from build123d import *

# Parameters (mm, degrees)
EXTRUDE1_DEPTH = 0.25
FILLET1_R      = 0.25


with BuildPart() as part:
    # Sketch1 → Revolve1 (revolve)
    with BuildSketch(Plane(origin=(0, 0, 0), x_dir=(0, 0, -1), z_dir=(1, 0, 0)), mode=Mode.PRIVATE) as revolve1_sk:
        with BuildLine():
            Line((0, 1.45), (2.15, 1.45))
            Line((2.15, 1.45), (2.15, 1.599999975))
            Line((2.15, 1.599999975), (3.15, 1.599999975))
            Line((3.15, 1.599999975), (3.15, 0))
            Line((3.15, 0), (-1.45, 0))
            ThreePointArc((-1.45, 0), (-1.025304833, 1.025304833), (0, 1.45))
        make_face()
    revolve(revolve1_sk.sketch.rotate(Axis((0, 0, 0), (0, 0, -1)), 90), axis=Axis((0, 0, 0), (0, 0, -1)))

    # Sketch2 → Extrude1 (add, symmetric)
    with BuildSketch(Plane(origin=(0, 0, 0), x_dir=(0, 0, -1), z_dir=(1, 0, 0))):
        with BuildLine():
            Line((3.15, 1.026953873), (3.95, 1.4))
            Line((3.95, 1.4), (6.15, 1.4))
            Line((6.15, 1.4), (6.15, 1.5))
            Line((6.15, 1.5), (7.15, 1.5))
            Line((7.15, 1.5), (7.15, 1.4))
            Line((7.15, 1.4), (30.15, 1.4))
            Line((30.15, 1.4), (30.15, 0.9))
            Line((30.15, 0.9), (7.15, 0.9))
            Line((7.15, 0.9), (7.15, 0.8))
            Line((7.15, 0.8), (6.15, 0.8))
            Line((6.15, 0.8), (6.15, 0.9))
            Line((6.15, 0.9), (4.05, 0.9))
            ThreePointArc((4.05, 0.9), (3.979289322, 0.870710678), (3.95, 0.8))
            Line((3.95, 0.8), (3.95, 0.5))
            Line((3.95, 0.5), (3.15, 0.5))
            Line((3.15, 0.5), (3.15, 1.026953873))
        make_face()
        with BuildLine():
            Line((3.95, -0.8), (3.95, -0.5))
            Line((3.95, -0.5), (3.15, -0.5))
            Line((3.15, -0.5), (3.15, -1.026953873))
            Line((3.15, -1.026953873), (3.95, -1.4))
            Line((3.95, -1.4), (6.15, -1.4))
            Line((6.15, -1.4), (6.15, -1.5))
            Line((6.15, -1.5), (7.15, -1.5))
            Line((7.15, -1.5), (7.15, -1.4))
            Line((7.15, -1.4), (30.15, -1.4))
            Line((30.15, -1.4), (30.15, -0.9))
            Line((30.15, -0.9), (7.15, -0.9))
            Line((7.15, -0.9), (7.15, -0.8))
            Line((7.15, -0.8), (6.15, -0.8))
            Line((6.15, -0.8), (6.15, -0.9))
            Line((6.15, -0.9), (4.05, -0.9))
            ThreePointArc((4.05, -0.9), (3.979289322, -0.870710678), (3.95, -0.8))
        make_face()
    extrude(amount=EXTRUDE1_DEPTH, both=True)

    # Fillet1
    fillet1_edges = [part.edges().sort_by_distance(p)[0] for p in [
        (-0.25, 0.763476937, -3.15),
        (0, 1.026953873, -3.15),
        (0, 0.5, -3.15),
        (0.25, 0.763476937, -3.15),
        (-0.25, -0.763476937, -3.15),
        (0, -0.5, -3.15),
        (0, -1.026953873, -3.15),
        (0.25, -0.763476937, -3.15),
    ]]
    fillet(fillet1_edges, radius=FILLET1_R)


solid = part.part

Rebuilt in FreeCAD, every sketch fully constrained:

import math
import FreeCAD as App
import Part
import Sketcher
Q = App.Units.Quantity


def edges_at(feature, points):
    """Names of the edges that pass closest to the given points."""
    edges = feature.Shape.Edges
    near = lambda p: min(range(len(edges)), key=lambda i: edges[i].distToShape(Part.Vertex(*p))[0])
    return sorted({f"Edge{near(p) + 1}" for p in points})

doc = App.newDocument("Part")
body = doc.addObject("PartDesign::Body", "Body")

# Sketch on YZ plane
sketch1 = body.newObject("Sketcher::SketchObject", "Sketch")
sketch1.AttachmentSupport = (doc.getObject("YZ_Plane"), [""])
sketch1.MapMode = "FlatFace"
sketch1.addGeometry([
    Part.LineSegment(App.Vector(1.45, -2.15, 0), App.Vector(1.45, 0, 0)),  # 0
    Part.ArcOfCircle(Part.Circle(App.Vector(0, 0, 0), App.Vector(0, 0, 1), 1.45), math.radians(0), math.radians(90)),  # 1
    Part.LineSegment(App.Vector(0, 1.45, 0), App.Vector(0, -3.15, 0)),  # 2
    Part.LineSegment(App.Vector(0, -3.15, 0), App.Vector(1.6, -3.15, 0)),  # 3
    Part.LineSegment(App.Vector(1.6, -3.15, 0), App.Vector(1.6, -2.15, 0)),  # 4
    Part.LineSegment(App.Vector(1.6, -2.15, 0), App.Vector(1.45, -2.15, 0)),  # 5
], False)
sketch1.addConstraint([
    Sketcher.Constraint("Tangent", 0, 2, 1, 1),
    Sketcher.Constraint("Coincident", 1, 2, 2, 1),
    Sketcher.Constraint("Coincident", 2, 2, 3, 1),
    Sketcher.Constraint("Coincident", 3, 2, 4, 1),
    Sketcher.Constraint("Coincident", 4, 2, 5, 1),
    Sketcher.Constraint("Coincident", 5, 2, 0, 1),
    Sketcher.Constraint("Vertical", 0),
    Sketcher.Constraint("Vertical", 2),
    Sketcher.Constraint("Horizontal", 3),
    Sketcher.Constraint("Vertical", 4),
    Sketcher.Constraint("Horizontal", 5),
    Sketcher.Constraint("Coincident", 1, 3, -1, 1),
    Sketcher.Constraint("PointOnObject", 1, 2, -2),
    Sketcher.Constraint("DistanceY", 4, 1, 4, 2, 1.0),
    Sketcher.Constraint("Radius", 1, 1.45),
    Sketcher.Constraint("DistanceX", 3, 1, 3, 2, 1.6),
    Sketcher.Constraint("DistanceY", 2, 2, 2, 1, 4.6),
])
revolution = body.newObject("PartDesign::Revolution", "Revolution")
revolution.Profile = sketch1
revolution.ReferenceAxis = (sketch1, ["V_Axis"])
revolution.Angle = 360

# Sketch on YZ plane
sketch2 = body.newObject("Sketcher::SketchObject", "Sketch001")
sketch2.AttachmentSupport = (doc.getObject("YZ_Plane"), [""])
sketch2.MapMode = "FlatFace"
sketch2.addGeometry([
    Part.LineSegment(App.Vector(1.4, -3.95, 0), App.Vector(1.026954, -3.15, 0)),  # 0
    Part.LineSegment(App.Vector(1.026954, -3.15, 0), App.Vector(0.5, -3.15, 0)),  # 1
    Part.LineSegment(App.Vector(0.5, -3.15, 0), App.Vector(0.5, -3.95, 0)),  # 2
    Part.LineSegment(App.Vector(0.5, -3.95, 0), App.Vector(0.8, -3.95, 0)),  # 3
    Part.ArcOfCircle(Part.Circle(App.Vector(0.8, -4.05, 0), App.Vector(0, 0, 1), 0.1), math.radians(0), math.radians(90)),  # 4
    Part.LineSegment(App.Vector(0.9, -4.05, 0), App.Vector(0.9, -6.15, 0)),  # 5
    Part.LineSegment(App.Vector(0.9, -6.15, 0), App.Vector(0.8, -6.15, 0)),  # 6
    Part.LineSegment(App.Vector(0.8, -6.15, 0), App.Vector(0.8, -7.15, 0)),  # 7
    Part.LineSegment(App.Vector(0.8, -7.15, 0), App.Vector(0.9, -7.15, 0)),  # 8
    Part.LineSegment(App.Vector(0.9, -7.15, 0), App.Vector(0.9, -30.15, 0)),  # 9
    Part.LineSegment(App.Vector(0.9, -30.15, 0), App.Vector(1.4, -30.15, 0)),  # 10
    Part.LineSegment(App.Vector(1.4, -30.15, 0), App.Vector(1.4, -7.15, 0)),  # 11
    Part.LineSegment(App.Vector(1.4, -7.15, 0), App.Vector(1.5, -7.15, 0)),  # 12
    Part.LineSegment(App.Vector(1.5, -7.15, 0), App.Vector(1.5, -6.15, 0)),  # 13
    Part.LineSegment(App.Vector(1.5, -6.15, 0), App.Vector(1.4, -6.15, 0)),  # 14
    Part.LineSegment(App.Vector(1.4, -6.15, 0), App.Vector(1.4, -3.95, 0)),  # 15
    Part.LineSegment(App.Vector(-0.8, -3.95, 0), App.Vector(-0.5, -3.95, 0)),  # 16
    Part.LineSegment(App.Vector(-0.5, -3.95, 0), App.Vector(-0.5, -3.15, 0)),  # 17
    Part.LineSegment(App.Vector(-0.5, -3.15, 0), App.Vector(-1.026954, -3.15, 0)),  # 18
    Part.LineSegment(App.Vector(-1.026954, -3.15, 0), App.Vector(-1.4, -3.95, 0)),  # 19
    Part.LineSegment(App.Vector(-1.4, -3.95, 0), App.Vector(-1.4, -6.15, 0)),  # 20
    Part.LineSegment(App.Vector(-1.4, -6.15, 0), App.Vector(-1.5, -6.15, 0)),  # 21
    Part.LineSegment(App.Vector(-1.5, -6.15, 0), App.Vector(-1.5, -7.15, 0)),  # 22
    Part.LineSegment(App.Vector(-1.5, -7.15, 0), App.Vector(-1.4, -7.15, 0)),  # 23
    Part.LineSegment(App.Vector(-1.4, -7.15, 0), App.Vector(-1.4, -30.15, 0)),  # 24
    Part.LineSegment(App.Vector(-1.4, -30.15, 0), App.Vector(-0.9, -30.15, 0)),  # 25
    Part.LineSegment(App.Vector(-0.9, -30.15, 0), App.Vector(-0.9, -7.15, 0)),  # 26
    Part.LineSegment(App.Vector(-0.9, -7.15, 0), App.Vector(-0.8, -7.15, 0)),  # 27
    Part.LineSegment(App.Vector(-0.8, -7.15, 0), App.Vector(-0.8, -6.15, 0)),  # 28
    Part.LineSegment(App.Vector(-0.8, -6.15, 0), App.Vector(-0.9, -6.15, 0)),  # 29
    Part.LineSegment(App.Vector(-0.9, -6.15, 0), App.Vector(-0.9, -4.05, 0)),  # 30
    Part.ArcOfCircle(Part.Circle(App.Vector(-0.8, -4.05, 0), App.Vector(0, 0, 1), 0.1), math.radians(90), math.radians(180)),  # 31
], False)
sketch2.addConstraint([
    Sketcher.Constraint("Coincident", 0, 2, 1, 1),
    Sketcher.Constraint("Coincident", 1, 2, 2, 1),
    Sketcher.Constraint("Coincident", 2, 2, 3, 1),
    Sketcher.Constraint("Tangent", 3, 2, 4, 2),
    Sketcher.Constraint("Tangent", 4, 1, 5, 1),
    Sketcher.Constraint("Coincident", 5, 2, 6, 1),
    Sketcher.Constraint("Coincident", 6, 2, 7, 1),
    Sketcher.Constraint("Coincident", 7, 2, 8, 1),
    Sketcher.Constraint("Coincident", 8, 2, 9, 1),
    Sketcher.Constraint("Coincident", 9, 2, 10, 1),
    Sketcher.Constraint("Coincident", 10, 2, 11, 1),
    Sketcher.Constraint("Coincident", 11, 2, 12, 1),
    Sketcher.Constraint("Coincident", 12, 2, 13, 1),
    Sketcher.Constraint("Coincident", 13, 2, 14, 1),
    Sketcher.Constraint("Coincident", 14, 2, 15, 1),
    Sketcher.Constraint("Coincident", 15, 2, 0, 1),
    Sketcher.Constraint("Coincident", 16, 2, 17, 1),
    Sketcher.Constraint("Coincident", 17, 2, 18, 1),
    Sketcher.Constraint("Coincident", 18, 2, 19, 1),
    Sketcher.Constraint("Coincident", 19, 2, 20, 1),
    Sketcher.Constraint("Coincident", 20, 2, 21, 1),
    Sketcher.Constraint("Coincident", 21, 2, 22, 1),
    Sketcher.Constraint("Coincident", 22, 2, 23, 1),
    Sketcher.Constraint("Coincident", 23, 2, 24, 1),
    Sketcher.Constraint("Coincident", 24, 2, 25, 1),
    Sketcher.Constraint("Coincident", 25, 2, 26, 1),
    Sketcher.Constraint("Coincident", 26, 2, 27, 1),
    Sketcher.Constraint("Coincident", 27, 2, 28, 1),
    Sketcher.Constraint("Coincident", 28, 2, 29, 1),
    Sketcher.Constraint("Coincident", 29, 2, 30, 1),
    Sketcher.Constraint("Tangent", 30, 2, 31, 2),
    Sketcher.Constraint("Tangent", 31, 1, 16, 1),
    Sketcher.Constraint("Horizontal", 1),
    Sketcher.Constraint("Vertical", 2),
    Sketcher.Constraint("Horizontal", 3),
    Sketcher.Constraint("Vertical", 5),
    Sketcher.Constraint("Horizontal", 6),
    Sketcher.Constraint("Vertical", 7),
    Sketcher.Constraint("Horizontal", 8),
    Sketcher.Constraint("Vertical", 9),
    Sketcher.Constraint("Horizontal", 10),
    Sketcher.Constraint("Vertical", 11),
    Sketcher.Constraint("Horizontal", 12),
    Sketcher.Constraint("Vertical", 13),
    Sketcher.Constraint("Horizontal", 14),
    Sketcher.Constraint("Vertical", 15),
    Sketcher.Constraint("Horizontal", 16),
    Sketcher.Constraint("Vertical", 17),
    Sketcher.Constraint("Horizontal", 18),
    Sketcher.Constraint("Vertical", 20),
    Sketcher.Constraint("Horizontal", 21),
    Sketcher.Constraint("Vertical", 22),
    Sketcher.Constraint("Horizontal", 23),
    Sketcher.Constraint("Vertical", 24),
    Sketcher.Constraint("Horizontal", 25),
    Sketcher.Constraint("Vertical", 26),
    Sketcher.Constraint("Horizontal", 27),
    Sketcher.Constraint("Vertical", 28),
    Sketcher.Constraint("Horizontal", 29),
    Sketcher.Constraint("Vertical", 30),
    Sketcher.Constraint("Equal", 4, 31),
    Sketcher.Constraint("Symmetric", 4, 3, 31, 3, -2),
    Sketcher.Constraint("Symmetric", 1, 2, 17, 2, -2),
    Sketcher.Constraint("Symmetric", 15, 2, 19, 2, -2),
    Sketcher.Constraint("Symmetric", 13, 2, 21, 2, -2),
    Sketcher.Constraint("Symmetric", 11, 2, 23, 2, -2),
    Sketcher.Constraint("Symmetric", 9, 2, 25, 2, -2),
    Sketcher.Constraint("Symmetric", 7, 2, 27, 2, -2),
    Sketcher.Constraint("Horizontal", 8, 2, 11, 2),
    Sketcher.Constraint("Horizontal", 6, 2, 13, 2),
    Sketcher.Constraint("Horizontal", 3, 2, 15, 2),
    Sketcher.Constraint("Horizontal", 21, 2, 28, 2),
    Sketcher.Constraint("Vertical", 3, 2, 6, 2),
    Sketcher.Constraint("Vertical", 5, 2, 8, 2),
    Sketcher.Constraint("Vertical", 11, 2, 14, 2),
    Sketcher.Constraint("Equal", 8, 12),
    Sketcher.Constraint("Equal", 1, 18),
    Sketcher.Constraint("Radius", 4, 0.1),
    Sketcher.Constraint("DistanceY", 7, 2, 7, 1, 1.0),
    Sketcher.Constraint("DistanceY", 9, 2, 9, 1, 23.0),
    Sketcher.Constraint("Angle", 0, Q("115 deg")),
    Sketcher.Constraint("DistanceX", 3, 1, 3, 2, 0.3),
    Sketcher.Constraint("DistanceX", 10, 1, 10, 2, 0.5),
    Sketcher.Constraint("DistanceY", 2, 2, 2, 1, 0.8),
    Sketcher.Constraint("DistanceY", 5, 2, 5, 1, 2.1),
    Sketcher.Constraint("DistanceX", 16, 2, 2, 2, 1.0),
    Sketcher.Constraint("DistanceY", 4, 3, -1, 1, 4.05),
])
pad1 = body.newObject("PartDesign::Pad", "Pad")
pad1.Profile = sketch2
pad1.Length = 0.5
pad1.Midplane = True
doc.recompute()

fillet = body.newObject("PartDesign::Fillet", "Fillet")
fillet.Base = (pad1, edges_at(pad1, [
    (-0.25, 0.763, -3.15),
    (0, 1.027, -3.15),
    (0, 0.5, -3.15),
    (0.25, 0.763, -3.15),
    (-0.25, -0.763, -3.15),
    (0, -0.5, -3.15),
    (0, -1.027, -3.15),
    (0.25, -0.763, -3.15),
]))
fillet.Radius = 0.25

doc.recompute()
